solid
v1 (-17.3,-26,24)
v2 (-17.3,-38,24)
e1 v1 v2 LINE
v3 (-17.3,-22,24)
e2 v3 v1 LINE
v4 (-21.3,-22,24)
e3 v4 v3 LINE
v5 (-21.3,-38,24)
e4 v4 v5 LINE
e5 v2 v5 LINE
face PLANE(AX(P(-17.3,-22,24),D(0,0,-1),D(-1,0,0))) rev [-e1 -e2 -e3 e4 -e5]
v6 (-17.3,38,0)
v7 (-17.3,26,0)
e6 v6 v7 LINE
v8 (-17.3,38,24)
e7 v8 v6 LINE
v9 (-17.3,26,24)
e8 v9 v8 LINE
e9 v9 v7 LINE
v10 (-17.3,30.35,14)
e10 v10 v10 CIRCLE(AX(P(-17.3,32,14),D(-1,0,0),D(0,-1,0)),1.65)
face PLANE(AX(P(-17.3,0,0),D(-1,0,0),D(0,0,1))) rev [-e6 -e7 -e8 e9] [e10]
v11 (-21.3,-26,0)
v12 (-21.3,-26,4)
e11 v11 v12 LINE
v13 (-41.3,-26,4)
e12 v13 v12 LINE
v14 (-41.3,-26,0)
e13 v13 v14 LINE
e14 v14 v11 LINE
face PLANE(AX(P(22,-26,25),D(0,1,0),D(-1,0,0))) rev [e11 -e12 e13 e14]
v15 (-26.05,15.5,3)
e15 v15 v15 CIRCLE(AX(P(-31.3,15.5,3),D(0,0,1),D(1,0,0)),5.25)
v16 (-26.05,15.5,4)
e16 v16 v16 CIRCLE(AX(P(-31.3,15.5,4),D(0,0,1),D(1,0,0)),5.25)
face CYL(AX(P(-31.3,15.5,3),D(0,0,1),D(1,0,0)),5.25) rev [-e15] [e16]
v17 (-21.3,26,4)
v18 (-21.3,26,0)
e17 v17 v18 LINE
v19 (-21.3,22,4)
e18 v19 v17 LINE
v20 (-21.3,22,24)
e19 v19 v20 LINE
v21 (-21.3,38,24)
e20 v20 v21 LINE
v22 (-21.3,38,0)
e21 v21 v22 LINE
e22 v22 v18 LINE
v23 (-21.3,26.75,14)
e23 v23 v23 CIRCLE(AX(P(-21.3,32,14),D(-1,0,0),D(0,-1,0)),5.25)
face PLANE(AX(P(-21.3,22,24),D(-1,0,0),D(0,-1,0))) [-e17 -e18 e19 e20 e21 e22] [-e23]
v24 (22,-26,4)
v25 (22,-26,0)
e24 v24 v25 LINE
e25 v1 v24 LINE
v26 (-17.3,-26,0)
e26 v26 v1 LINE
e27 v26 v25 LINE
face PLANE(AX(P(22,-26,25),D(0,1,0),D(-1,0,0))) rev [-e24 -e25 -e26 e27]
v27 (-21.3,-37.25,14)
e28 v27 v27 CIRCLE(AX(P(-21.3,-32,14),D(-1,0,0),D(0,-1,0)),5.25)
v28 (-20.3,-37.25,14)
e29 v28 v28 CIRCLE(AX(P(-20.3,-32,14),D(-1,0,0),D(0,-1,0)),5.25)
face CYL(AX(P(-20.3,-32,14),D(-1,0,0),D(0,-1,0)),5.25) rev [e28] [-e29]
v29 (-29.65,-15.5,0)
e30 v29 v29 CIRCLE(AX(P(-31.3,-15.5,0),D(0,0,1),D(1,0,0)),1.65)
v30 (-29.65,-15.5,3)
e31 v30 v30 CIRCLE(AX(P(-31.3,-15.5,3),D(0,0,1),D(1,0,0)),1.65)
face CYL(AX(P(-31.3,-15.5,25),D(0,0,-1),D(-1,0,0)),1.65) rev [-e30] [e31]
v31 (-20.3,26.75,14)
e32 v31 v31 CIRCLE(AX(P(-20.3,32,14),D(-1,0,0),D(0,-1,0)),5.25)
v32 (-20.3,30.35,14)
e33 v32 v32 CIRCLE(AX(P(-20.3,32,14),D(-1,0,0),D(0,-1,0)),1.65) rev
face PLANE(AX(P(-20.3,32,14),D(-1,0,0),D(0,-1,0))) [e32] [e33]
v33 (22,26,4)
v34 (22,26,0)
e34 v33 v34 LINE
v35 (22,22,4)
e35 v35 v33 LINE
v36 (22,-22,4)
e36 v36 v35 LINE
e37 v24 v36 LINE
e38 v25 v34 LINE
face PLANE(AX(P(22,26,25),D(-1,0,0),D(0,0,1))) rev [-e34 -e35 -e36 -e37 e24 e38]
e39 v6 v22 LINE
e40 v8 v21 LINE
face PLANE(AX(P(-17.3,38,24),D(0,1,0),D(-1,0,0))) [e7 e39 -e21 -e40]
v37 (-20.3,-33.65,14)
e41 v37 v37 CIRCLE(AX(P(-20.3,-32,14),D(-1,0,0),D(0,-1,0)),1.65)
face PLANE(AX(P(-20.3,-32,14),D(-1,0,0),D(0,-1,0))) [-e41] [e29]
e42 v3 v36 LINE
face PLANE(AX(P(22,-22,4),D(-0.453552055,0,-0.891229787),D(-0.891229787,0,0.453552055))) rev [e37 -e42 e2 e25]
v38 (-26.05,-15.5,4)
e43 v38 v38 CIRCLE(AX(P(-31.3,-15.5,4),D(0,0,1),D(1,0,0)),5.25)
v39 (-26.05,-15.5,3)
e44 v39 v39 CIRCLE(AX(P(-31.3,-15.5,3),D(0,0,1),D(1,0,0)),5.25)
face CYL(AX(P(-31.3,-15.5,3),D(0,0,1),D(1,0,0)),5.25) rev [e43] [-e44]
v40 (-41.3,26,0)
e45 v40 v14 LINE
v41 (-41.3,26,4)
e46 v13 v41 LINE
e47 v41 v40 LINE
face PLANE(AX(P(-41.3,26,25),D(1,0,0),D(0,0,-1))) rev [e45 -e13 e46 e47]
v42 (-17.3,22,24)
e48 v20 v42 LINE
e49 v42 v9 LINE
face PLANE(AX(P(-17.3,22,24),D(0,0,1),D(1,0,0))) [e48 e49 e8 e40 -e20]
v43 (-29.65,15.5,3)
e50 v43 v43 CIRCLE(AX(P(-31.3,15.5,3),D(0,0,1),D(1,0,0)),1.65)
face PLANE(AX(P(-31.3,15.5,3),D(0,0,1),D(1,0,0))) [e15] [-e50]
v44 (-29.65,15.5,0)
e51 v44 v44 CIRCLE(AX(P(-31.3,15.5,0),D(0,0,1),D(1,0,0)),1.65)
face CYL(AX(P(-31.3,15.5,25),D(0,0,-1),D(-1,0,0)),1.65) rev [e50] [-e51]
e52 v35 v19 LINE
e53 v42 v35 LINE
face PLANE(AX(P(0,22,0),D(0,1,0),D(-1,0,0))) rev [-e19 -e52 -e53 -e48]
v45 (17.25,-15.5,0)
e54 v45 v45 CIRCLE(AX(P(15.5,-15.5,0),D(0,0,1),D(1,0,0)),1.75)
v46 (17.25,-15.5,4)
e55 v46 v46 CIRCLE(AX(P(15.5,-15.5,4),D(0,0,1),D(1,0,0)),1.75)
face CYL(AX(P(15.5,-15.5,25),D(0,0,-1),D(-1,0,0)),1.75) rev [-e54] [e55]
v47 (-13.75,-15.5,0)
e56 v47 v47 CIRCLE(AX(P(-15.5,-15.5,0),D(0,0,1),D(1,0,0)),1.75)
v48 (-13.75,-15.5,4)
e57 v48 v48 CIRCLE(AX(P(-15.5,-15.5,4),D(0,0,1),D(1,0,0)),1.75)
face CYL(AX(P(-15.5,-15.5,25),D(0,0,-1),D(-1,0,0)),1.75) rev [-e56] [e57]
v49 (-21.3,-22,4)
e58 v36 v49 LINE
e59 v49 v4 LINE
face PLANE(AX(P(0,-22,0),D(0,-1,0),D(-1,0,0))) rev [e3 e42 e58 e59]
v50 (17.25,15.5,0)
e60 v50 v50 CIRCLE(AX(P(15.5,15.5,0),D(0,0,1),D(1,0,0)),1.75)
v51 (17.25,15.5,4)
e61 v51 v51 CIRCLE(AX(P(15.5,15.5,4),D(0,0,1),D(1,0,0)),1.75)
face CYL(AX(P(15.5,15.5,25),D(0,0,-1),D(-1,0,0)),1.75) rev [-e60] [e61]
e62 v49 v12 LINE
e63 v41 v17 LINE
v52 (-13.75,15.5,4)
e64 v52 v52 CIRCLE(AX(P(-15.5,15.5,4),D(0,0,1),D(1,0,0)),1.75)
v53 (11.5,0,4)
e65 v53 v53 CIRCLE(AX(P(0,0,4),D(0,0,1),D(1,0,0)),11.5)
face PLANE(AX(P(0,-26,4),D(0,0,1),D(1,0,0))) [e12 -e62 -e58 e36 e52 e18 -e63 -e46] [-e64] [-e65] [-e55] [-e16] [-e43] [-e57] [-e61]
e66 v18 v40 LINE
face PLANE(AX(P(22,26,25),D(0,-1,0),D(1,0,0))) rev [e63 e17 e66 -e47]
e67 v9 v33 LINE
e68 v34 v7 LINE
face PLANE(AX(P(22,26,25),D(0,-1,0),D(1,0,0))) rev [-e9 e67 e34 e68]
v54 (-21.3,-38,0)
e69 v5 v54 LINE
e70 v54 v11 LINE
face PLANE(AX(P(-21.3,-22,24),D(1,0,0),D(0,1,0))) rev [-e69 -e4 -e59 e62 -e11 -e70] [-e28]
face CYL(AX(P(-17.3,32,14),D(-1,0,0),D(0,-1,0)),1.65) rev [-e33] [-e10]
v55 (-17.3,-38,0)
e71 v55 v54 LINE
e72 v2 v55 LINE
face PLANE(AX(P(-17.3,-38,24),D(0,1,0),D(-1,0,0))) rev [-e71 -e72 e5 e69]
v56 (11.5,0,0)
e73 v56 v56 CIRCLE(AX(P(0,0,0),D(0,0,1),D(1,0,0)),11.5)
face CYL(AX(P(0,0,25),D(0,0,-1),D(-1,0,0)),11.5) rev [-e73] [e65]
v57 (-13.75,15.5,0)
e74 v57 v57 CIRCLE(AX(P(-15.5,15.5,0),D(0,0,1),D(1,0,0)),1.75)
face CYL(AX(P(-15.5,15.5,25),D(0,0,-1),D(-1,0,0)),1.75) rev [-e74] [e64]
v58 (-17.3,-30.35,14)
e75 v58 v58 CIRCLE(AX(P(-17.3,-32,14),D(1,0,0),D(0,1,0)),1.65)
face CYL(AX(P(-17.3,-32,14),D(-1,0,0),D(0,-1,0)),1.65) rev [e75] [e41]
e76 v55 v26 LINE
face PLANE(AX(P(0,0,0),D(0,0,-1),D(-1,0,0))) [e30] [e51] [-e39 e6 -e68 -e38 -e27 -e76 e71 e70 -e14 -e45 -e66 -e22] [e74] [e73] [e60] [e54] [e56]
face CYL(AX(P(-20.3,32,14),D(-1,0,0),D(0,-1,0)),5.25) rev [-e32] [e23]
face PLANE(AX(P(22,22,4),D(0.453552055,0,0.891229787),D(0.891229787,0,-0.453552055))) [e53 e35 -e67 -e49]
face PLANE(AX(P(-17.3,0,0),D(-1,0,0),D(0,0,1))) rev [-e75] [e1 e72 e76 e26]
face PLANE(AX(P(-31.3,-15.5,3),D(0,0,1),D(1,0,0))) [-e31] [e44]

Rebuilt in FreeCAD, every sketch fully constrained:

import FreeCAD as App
import Part
import Sketcher

V = App.Vector


def add_polygon(sketch, points):
    """Adds a closed chain of lines whose ends are joined by coincident constraints."""
    first, n = sketch.GeometryCount, len(points)
    for a, b in zip(points, points[1:] + points[:1]):
        sketch.addGeometry(Part.LineSegment(App.Vector(*a, 0), App.Vector(*b, 0)), False)
    for i in range(n):
        sketch.addConstraint(Sketcher.Constraint("Coincident", first + i, 2, first + (i + 1) % n, 1))

doc = App.newDocument("Part")
body = doc.addObject("PartDesign::Body", "Body")

# Sketch on XY plane
sketch1 = body.newObject("Sketcher::SketchObject", "Sketch")
sketch1.AttachmentSupport = (doc.getObject("XY_Plane"), [""])
sketch1.MapMode = "FlatFace"
add_polygon(sketch1, [(-41.3, 26), (-41.3, -26), (22, -26), (22, 26)])  # lines 0-3
sketch1.addGeometry(Part.Circle(V(-31.3, -15.5, 0), V(0, 0, 1), 1.6), False)  # 4
sketch1.addGeometry(Part.Circle(V(-15.5, -15.5, 0), V(0, 0, 1), 1.8), False)  # 5
sketch1.addGeometry(Part.Circle(V(15.5, -15.5, 0), V(0, 0, 1), 1.8), False)  # 6
sketch1.addGeometry(Part.Circle(V(-31.3, 15.5, 0), V(0, 0, 1), 1.6), False)  # 7
sketch1.addGeometry(Part.Circle(V(-15.5, 15.5, 0), V(0, 0, 1), 1.8), False)  # 8
sketch1.addGeometry(Part.Circle(V(0, 0, 0), V(0, 0, 1), 11.5), False)  # 9
sketch1.addGeometry(Part.Circle(V(15.5, 15.5, 0), V(0, 0, 1), 1.8), False)  # 10
sketch1.addConstraint([
    Sketcher.Constraint("Vertical", 0),
    Sketcher.Constraint("Horizontal", 1),
    Sketcher.Constraint("Vertical", 2),
    Sketcher.Constraint("Horizontal", 3),
    Sketcher.Constraint("Coincident", 9, 3, -1, 1),
    Sketcher.Constraint("Equal", 5, 6),
    Sketcher.Constraint("Equal", 4, 7),
    Sketcher.Constraint("Equal", 6, 8),
    Sketcher.Constraint("Equal", 8, 10),
    Sketcher.Constraint("Symmetric", 6, 3, 8, 3, -1, 1),
    Sketcher.Constraint("Symmetric", 5, 3, 10, 3, -1, 1),
    Sketcher.Constraint("Symmetric", 5, 3, 6, 3, -2),
    Sketcher.Constraint("Symmetric", 4, 3, 7, 3, -1),
    Sketcher.Constraint("Horizontal", 4, 3, 5, 3),
    Sketcher.Constraint("Diameter", 9, 23.0),
    Sketcher.Constraint("Diameter", 4, 3.3),
    Sketcher.Constraint("Diameter", 5, 3.5),
    Sketcher.Constraint("DistanceY", 0, 2, 0, 1, 52.0),
    Sketcher.Constraint("DistanceX", 1, 1, 1, 2, 63.3),
    Sketcher.Constraint("DistanceY", 0, 2, -1, 1, 26.0),
    Sketcher.Constraint("DistanceX", -1, 1, 1, 2, 22.0),
    Sketcher.Constraint("DistanceX", 5, 3, 6, 3, 31.0),
    Sketcher.Constraint("DistanceY", 4, 3, 7, 3, 31.0),
    Sketcher.Constraint("DistanceX", 0, 2, 4, 3, 10.0),
])
pad1 = body.newObject("PartDesign::Pad", "Pad")
pad1.Profile = sketch1
pad1.Length = 25

# Sketch on XZ plane
sketch2 = body.newObject("Sketcher::SketchObject", "Sketch001")
sketch2.AttachmentSupport = (doc.getObject("XZ_Plane"), [""])
sketch2.MapMode = "FlatFace"
add_polygon(sketch2, [(-41, 4), (-41, 25), (22, 25), (22, 4)])  # lines 0-3
sketch2.addConstraint([
    Sketcher.Constraint("Vertical", 0),
    Sketcher.Constraint("Horizontal", 1),
    Sketcher.Constraint("Vertical", 2),
    Sketcher.Constraint("Horizontal", 3),
    Sketcher.Constraint("DistanceY", 0, 1, 0, 2, 21.0),
    Sketcher.Constraint("DistanceX", 1, 1, 1, 2, 63.3),
    Sketcher.Constraint("DistanceY", -1, 1, 0, 2, 25.0),
    Sketcher.Constraint("DistanceX", -1, 1, 1, 2, 22.0),
])
pocket1 = body.newObject("PartDesign::Pocket", "Pocket")
pocket1.Profile = sketch2
pocket1.Type = "ThroughAll"
pocket1.Midplane = True

# Sketch on XZ plane
sketch3 = body.newObject("Sketcher::SketchObject", "Sketch002")
sketch3.AttachmentSupport = (doc.getObject("XZ_Plane"), [""])
sketch3.MapMode = "FlatFace"
sketch3.AttachmentOffset = App.Placement(V(0, 0, -26), App.Rotation())
add_polygon(sketch3, [(-17.3, 24), (22, 4), (-21.3, 4), (-21.3, 24)])  # lines 0-3
sketch3.addConstraint([
    Sketcher.Constraint("Horizontal", 1),
    Sketcher.Constraint("Vertical", 2),
    Sketcher.Constraint("Horizontal", 3),
    Sketcher.Constraint("DistanceX", 3, 1, 3, 2, 4.0),
    Sketcher.Constraint("DistanceY", 2, 1, 2, 2, 20.0),
    Sketcher.Constraint("DistanceX", 1, 2, 1, 1, 43.3),
    Sketcher.Constraint("DistanceX", -1, 1, 0, 2, 22.0),
    Sketcher.Constraint("DistanceY", -1, 1, 0, 2, 4.0),
])
pad2 = body.newObject("PartDesign::Pad", "Pad001")
pad2.Profile = sketch3
pad2.Length = 4

# Sketch on YZ plane
sketch4 = body.newObject("Sketcher::SketchObject", "Sketch003")
sketch4.AttachmentSupport = (doc.getObject("YZ_Plane"), [""])
sketch4.MapMode = "FlatFace"
sketch4.AttachmentOffset = App.Placement(V(0, 0, -21.3), App.Rotation())
add_polygon(sketch4, [(38, 0), (22, 0), (22, 24), (38, 24)])  # lines 0-3
sketch4.addGeometry(Part.Circle(V(32, 14, 0), V(0, 0, 1), 1.6), False)  # 4
sketch4.addConstraint([
    Sketcher.Constraint("Horizontal", 0),
    Sketcher.Constraint("Vertical", 1),
    Sketcher.Constraint("Horizontal", 2),
    Sketcher.Constraint("Vertical", 3),
    Sketcher.Constraint("PointOnObject", 0, 2, -1),
    Sketcher.Constraint("Diameter", 4, 3.3),
    Sketcher.Constraint("DistanceX", 0, 2, 0, 1, 16.0),
    Sketcher.Constraint("DistanceY", 1, 1, 1, 2, 24.0),
    Sketcher.Constraint("DistanceX", -1, 1, 4, 3, 32.0),
    Sketcher.Constraint("DistanceY", -1, 1, 4, 3, 14.0),
    Sketcher.Constraint("DistanceX", -1, 1, 0, 2, 22.0),
])
pad3 = body.newObject("PartDesign::Pad", "Pad002")
pad3.Profile = sketch4
pad3.Length = 4
doc.recompute()

mirrored = body.newObject("PartDesign::Mirrored", "Mirrored")
mirrored.Originals = [pad2, pad3]
mirrored.MirrorPlane = (doc.getObject("XZ_Plane"), [""])
body.Tip = mirrored

# Sketch on YZ plane
sketch5 = body.newObject("Sketcher::SketchObject", "Sketch004")
sketch5.AttachmentSupport = (doc.getObject("YZ_Plane"), [""])
sketch5.MapMode = "FlatFace"
sketch5.AttachmentOffset = App.Placement(V(0, 0, -21.3), App.Rotation())
sketch5.addGeometry([
    Part.Circle(V(-32, 14, 0), V(0, 0, 1), 5),
    Part.Circle(V(32, 14, 0), V(0, 0, 1), 5),
], False)
sketch5.addConstraint([
    Sketcher.Constraint("Equal", 0, 1),
    Sketcher.Constraint("Symmetric", 0, 3, 1, 3, -2),
    Sketcher.Constraint("Diameter", 0, 10.5),
    Sketcher.Constraint("DistanceX", 0, 3, -1, 1, 32.0),
    Sketcher.Constraint("DistanceY", -1, 1, 0, 3, 14.0),
])
pocket2 = body.newObject("PartDesign::Pocket", "Pocket001")
pocket2.Profile = sketch5
pocket2.Length = 1
pocket2.Reversed = True

# Sketch on XY plane
sketch6 = body.newObject("Sketcher::SketchObject", "Sketch005")
sketch6.AttachmentSupport = (doc.getObject("XY_Plane"), [""])
sketch6.MapMode = "FlatFace"
sketch6.AttachmentOffset = App.Placement(V(0, 0, 4), App.Rotation())
sketch6.addGeometry([
    Part.Circle(V(-31, 16, 0), V(0, 0, 1), 5),
    Part.Circle(V(-31, -16, 0), V(0, 0, 1), 5),
], False)
sketch6.addConstraint([
    Sketcher.Constraint("Equal", 0, 1),
    Sketcher.Constraint("Symmetric", 0, 3, 1, 3, -1),
    Sketcher.Constraint("Diameter", 0, 10.5),
    Sketcher.Constraint("DistanceY", 1, 3, 0, 3, 31.0),
    Sketcher.Constraint("DistanceX", 0, 3, -1, 1, 31.3),
])
pocket3 = body.newObject("PartDesign::Pocket", "Pocket002")
pocket3.Profile = sketch6
pocket3.Length = 1

doc.recompute()
